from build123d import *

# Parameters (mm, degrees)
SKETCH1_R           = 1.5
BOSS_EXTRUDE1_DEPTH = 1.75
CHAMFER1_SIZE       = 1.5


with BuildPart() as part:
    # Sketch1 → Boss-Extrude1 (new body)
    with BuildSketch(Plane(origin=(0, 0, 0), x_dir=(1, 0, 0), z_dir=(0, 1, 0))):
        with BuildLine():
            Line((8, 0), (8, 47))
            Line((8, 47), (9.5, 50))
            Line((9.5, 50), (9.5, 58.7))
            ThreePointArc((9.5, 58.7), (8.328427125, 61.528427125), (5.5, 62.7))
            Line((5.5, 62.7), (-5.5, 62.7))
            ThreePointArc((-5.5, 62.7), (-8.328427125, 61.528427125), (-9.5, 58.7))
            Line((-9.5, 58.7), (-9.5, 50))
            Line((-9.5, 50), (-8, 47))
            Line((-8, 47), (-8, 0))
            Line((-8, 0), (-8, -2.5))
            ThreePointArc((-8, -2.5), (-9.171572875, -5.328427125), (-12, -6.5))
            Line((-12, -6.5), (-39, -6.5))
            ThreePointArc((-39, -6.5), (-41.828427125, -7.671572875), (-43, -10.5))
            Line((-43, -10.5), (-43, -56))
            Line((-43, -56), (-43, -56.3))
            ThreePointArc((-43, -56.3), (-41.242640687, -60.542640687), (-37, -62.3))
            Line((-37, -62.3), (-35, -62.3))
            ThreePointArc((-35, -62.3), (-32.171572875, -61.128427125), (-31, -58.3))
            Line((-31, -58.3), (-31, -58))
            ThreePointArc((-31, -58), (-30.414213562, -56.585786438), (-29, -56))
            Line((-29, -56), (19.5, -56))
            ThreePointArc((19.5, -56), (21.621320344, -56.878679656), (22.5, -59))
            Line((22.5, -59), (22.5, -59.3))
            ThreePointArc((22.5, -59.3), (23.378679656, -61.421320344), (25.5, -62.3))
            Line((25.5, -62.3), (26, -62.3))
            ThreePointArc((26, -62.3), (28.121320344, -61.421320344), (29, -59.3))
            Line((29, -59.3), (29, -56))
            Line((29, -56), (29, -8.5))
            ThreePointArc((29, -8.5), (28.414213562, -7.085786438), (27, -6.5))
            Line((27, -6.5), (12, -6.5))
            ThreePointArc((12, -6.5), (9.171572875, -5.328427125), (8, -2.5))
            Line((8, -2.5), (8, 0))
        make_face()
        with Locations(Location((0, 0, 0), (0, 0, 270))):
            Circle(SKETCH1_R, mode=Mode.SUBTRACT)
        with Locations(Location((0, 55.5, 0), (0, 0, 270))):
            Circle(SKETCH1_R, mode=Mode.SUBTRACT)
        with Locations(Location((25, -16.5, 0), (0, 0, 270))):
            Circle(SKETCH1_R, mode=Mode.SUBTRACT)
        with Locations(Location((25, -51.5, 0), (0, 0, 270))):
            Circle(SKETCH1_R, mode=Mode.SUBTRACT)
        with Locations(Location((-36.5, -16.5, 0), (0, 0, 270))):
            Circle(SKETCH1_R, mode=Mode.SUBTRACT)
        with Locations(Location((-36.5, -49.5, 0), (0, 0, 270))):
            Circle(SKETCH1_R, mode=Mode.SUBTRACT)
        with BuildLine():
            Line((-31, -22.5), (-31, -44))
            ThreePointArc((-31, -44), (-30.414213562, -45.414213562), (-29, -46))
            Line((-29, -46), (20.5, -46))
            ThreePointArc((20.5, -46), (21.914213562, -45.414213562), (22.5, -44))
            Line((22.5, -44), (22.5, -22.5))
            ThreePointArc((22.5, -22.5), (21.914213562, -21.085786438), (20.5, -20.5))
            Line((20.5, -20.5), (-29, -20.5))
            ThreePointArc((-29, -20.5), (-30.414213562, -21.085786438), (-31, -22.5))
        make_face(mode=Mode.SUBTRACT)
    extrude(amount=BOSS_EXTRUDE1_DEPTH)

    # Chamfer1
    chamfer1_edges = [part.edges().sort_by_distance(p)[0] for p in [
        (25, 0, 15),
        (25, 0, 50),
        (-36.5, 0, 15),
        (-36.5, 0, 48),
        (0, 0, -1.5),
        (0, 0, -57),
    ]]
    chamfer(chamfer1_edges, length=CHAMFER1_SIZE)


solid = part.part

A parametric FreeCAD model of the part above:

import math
import FreeCAD as App
import Part
import Sketcher

V = App.Vector
Q = App.Units.Quantity


def edges_at(feature, points):
    """Names of the edges that pass closest to the given points."""
    edges = feature.Shape.Edges
    near = lambda p: min(range(len(edges)), key=lambda i: edges[i].distToShape(Part.Vertex(*p))[0])
    return sorted({f"Edge{near(p) + 1}" for p in points})

doc = App.newDocument("Part")
params = doc.addObject("Spreadsheet::Sheet", "Params")
for row, (alias, value) in enumerate([
    ("sketch1_diameter", "3 mm"),
    ("sketch1_radius", "4 mm"),
    ("sketch1_radius2", "6 mm"),
    ("sketch1_radius3", "2 mm"),
    ("sketch1_width", "11 mm"),
    ("pad1_length", "1.75 mm"),
    ("chamfer_size", "1.5 mm"),
], start=1):
    params.set(f"A{row}", alias)
    params.set(f"B{row}", "=" + value)
    params.setAlias(f"B{row}", alias)

body = doc.addObject("PartDesign::Body", "Body")

# Sketch on XZ plane
sketch1 = body.newObject("Sketcher::SketchObject", "Sketch")
sketch1.AttachmentSupport = (doc.getObject("XZ_Plane"), [""])
sketch1.MapMode = "FlatFace"
sketch1.addGeometry(Part.LineSegment(V(8, -47, 0), V(9.5, -50, 0)), False)
sketch1.addGeometry(Part.LineSegment(V(9.5, -50, 0), V(9.5, -58.7, 0)), False)
sketch1.addGeometry(Part.ArcOfCircle(Part.Circle(V(5.5, -58.7, 0), V(0, 0, 1), 4), math.radians(-90), math.radians(0)), False)
sketch1.addGeometry(Part.LineSegment(V(5.5, -62.7, 0), V(-5.5, -62.7, 0)), False)
sketch1.addGeometry(Part.ArcOfCircle(Part.Circle(V(-5.5, -58.7, 0), V(0, 0, 1), 4), math.radians(180), math.radians(270)), False)
sketch1.addGeometry(Part.LineSegment(V(-9.5, -58.7, 0), V(-9.5, -50, 0)), False)
sketch1.addGeometry(Part.LineSegment(V(-9.5, -50, 0), V(-8, -47, 0)), False)
sketch1.addGeometry(Part.LineSegment(V(-8, -47, 0), V(-8, 2.5, 0)), False)
sketch1.addGeometry(Part.ArcOfCircle(Part.Circle(V(-12, 2.5, 0), V(0, 0, 1), 4), math.radians(0), math.radians(90)), False)
sketch1.addGeometry(Part.LineSegment(V(-12, 6.5, 0), V(-39, 6.5, 0)), False)
sketch1.addGeometry(Part.ArcOfCircle(Part.Circle(V(-39, 10.5, 0), V(0, 0, 1), 4), math.radians(180), math.radians(270)), False)
sketch1.addGeometry(Part.LineSegment(V(-43, 10.5, 0), V(-43, 56.3, 0)), False)
sketch1.addGeometry(Part.ArcOfCircle(Part.Circle(V(-37, 56.3, 0), V(0, 0, 1), 6), math.radians(90), math.radians(180)), False)
sketch1.addGeometry(Part.LineSegment(V(-37, 62.3, 0), V(-35, 62.3, 0)), False)
sketch1.addGeometry(Part.ArcOfCircle(Part.Circle(V(-35, 58.3, 0), V(0, 0, 1), 4), math.radians(0), math.radians(90)), False)
sketch1.addGeometry(Part.LineSegment(V(-31, 58.3, 0), V(-31, 58, 0)), False)
sketch1.addGeometry(Part.ArcOfCircle(Part.Circle(V(-29, 58, 0), V(0, 0, 1), 2), math.radians(-180), math.radians(-90)), False)
sketch1.addGeometry(Part.LineSegment(V(-29, 56, 0), V(19.5, 56, 0)), False)
sketch1.addGeometry(Part.ArcOfCircle(Part.Circle(V(19.5, 59, 0), V(0, 0, 1), 3), math.radians(-90), math.radians(0)), False)
sketch1.addGeometry(Part.LineSegment(V(22.5, 59, 0), V(22.5, 59.3, 0)), False)
sketch1.addGeometry(Part.ArcOfCircle(Part.Circle(V(25.5, 59.3, 0), V(0, 0, 1), 3), math.radians(90), math.radians(180)), False)
sketch1.addGeometry(Part.LineSegment(V(25.5, 62.3, 0), V(26, 62.3, 0)), False)
sketch1.addGeometry(Part.ArcOfCircle(Part.Circle(V(26, 59.3, 0), V(0, 0, 1), 3), math.radians(0), math.radians(90)), False)
sketch1.addGeometry(Part.LineSegment(V(29, 59.3, 0), V(29, 8.5, 0)), False)
sketch1.addGeometry(Part.ArcOfCircle(Part.Circle(V(27, 8.5, 0), V(0, 0, 1), 2), math.radians(-90), math.radians(0)), False)
sketch1.addGeometry(Part.LineSegment(V(27, 6.5, 0), V(12, 6.5, 0)), False)
sketch1.addGeometry(Part.ArcOfCircle(Part.Circle(V(12, 2.5, 0), V(0, 0, 1), 4), math.radians(90), math.radians(180)), False)
sketch1.addGeometry(Part.LineSegment(V(8, 2.5, 0), V(8, -47, 0)), False)
sketch1.addGeometry(Part.Circle(V(-36.5, 49.5, 0), V(0, 0, 1), 1.5), False)
sketch1.addGeometry(Part.Circle(V(-36.5, 16.5, 0), V(0, 0, 1), 1.5), False)
sketch1.addGeometry(Part.LineSegment(V(-31, 44, 0), V(-31, 22.5, 0)), False)
sketch1.addGeometry(Part.ArcOfCircle(Part.Circle(V(-29, 22.5, 0), V(0, 0, 1), 2), math.radians(-180), math.radians(-90)), False)
sketch1.addGeometry(Part.LineSegment(V(-29, 20.5, 0), V(20.5, 20.5, 0)), False)
sketch1.addGeometry(Part.ArcOfCircle(Part.Circle(V(20.5, 22.5, 0), V(0, 0, 1), 2), math.radians(-90), math.radians(0)), False)
sketch1.addGeometry(Part.LineSegment(V(22.5, 22.5, 0), V(22.5, 44, 0)), False)
sketch1.addGeometry(Part.ArcOfCircle(Part.Circle(V(20.5, 44, 0), V(0, 0, 1), 2), math.radians(0), math.radians(90)), False)
sketch1.addGeometry(Part.LineSegment(V(20.5, 46, 0), V(-29, 46, 0)), False)
sketch1.addGeometry(Part.ArcOfCircle(Part.Circle(V(-29, 44, 0), V(0, 0, 1), 2), math.radians(90), math.radians(180)), False)
sketch1.addGeometry(Part.Circle(V(25, 51.5, 0), V(0, 0, 1), 1.5), False)
sketch1.addGeometry(Part.Circle(V(0, 0, 0), V(0, 0, 1), 1.5), False)
sketch1.addGeometry(Part.Circle(V(25, 16.5, 0), V(0, 0, 1), 1.5), False)
sketch1.addGeometry(Part.Circle(V(0, -55.5, 0), V(0, 0, 1), 1.5), False)
sketch1.addConstraint(Sketcher.Constraint("Coincident", 0, 2, 1, 1))
sketch1.addConstraint(Sketcher.Constraint("Tangent", 1, 2, 2, 2))
sketch1.addConstraint(Sketcher.Constraint("Tangent", 2, 1, 3, 1))
sketch1.addConstraint(Sketcher.Constraint("Tangent", 3, 2, 4, 2))
sketch1.addConstraint(Sketcher.Constraint("Tangent", 4, 1, 5, 1))
sketch1.addConstraint(Sketcher.Constraint("Coincident", 5, 2, 6, 1))
sketch1.addConstraint(Sketcher.Constraint("Coincident", 6, 2, 7, 1))
sketch1.addConstraint(Sketcher.Constraint("Tangent", 7, 2, 8, 1))
sketch1.addConstraint(Sketcher.Constraint("Tangent", 8, 2, 9, 1))
sketch1.addConstraint(Sketcher.Constraint("Tangent", 9, 2, 10, 2))
sketch1.addConstraint(Sketcher.Constraint("Tangent", 10, 1, 11, 1))
sketch1.addConstraint(Sketcher.Constraint("Tangent", 11, 2, 12, 2))
sketch1.addConstraint(Sketcher.Constraint("Tangent", 12, 1, 13, 1))
sketch1.addConstraint(Sketcher.Constraint("Tangent", 13, 2, 14, 2))
sketch1.addConstraint(Sketcher.Constraint("Tangent", 14, 1, 15, 1))
sketch1.addConstraint(Sketcher.Constraint("Tangent", 15, 2, 16, 1))
sketch1.addConstraint(Sketcher.Constraint("Tangent", 16, 2, 17, 1))
sketch1.addConstraint(Sketcher.Constraint("Tangent", 17, 2, 18, 1))
sketch1.addConstraint(Sketcher.Constraint("Tangent", 18, 2, 19, 1))
sketch1.addConstraint(Sketcher.Constraint("Tangent", 19, 2, 20, 2))
sketch1.addConstraint(Sketcher.Constraint("Tangent", 20, 1, 21, 1))
sketch1.addConstraint(Sketcher.Constraint("Tangent", 21, 2, 22, 2))
sketch1.addConstraint(Sketcher.Constraint("Tangent", 22, 1, 23, 1))
sketch1.addConstraint(Sketcher.Constraint("Tangent", 23, 2, 24, 2))
sketch1.addConstraint(Sketcher.Constraint("Tangent", 24, 1, 25, 1))
sketch1.addConstraint(Sketcher.Constraint("Tangent", 25, 2, 26, 1))
sketch1.addConstraint(Sketcher.Constraint("Tangent", 26, 2, 27, 1))
sketch1.addConstraint(Sketcher.Constraint("Coincident", 27, 2, 0, 1))
sketch1.addConstraint(Sketcher.Constraint("Tangent", 30, 2, 31, 1))
sketch1.addConstraint(Sketcher.Constraint("Tangent", 31, 2, 32, 1))
sketch1.addConstraint(Sketcher.Constraint("Tangent", 32, 2, 33, 1))
sketch1.addConstraint(Sketcher.Constraint("Tangent", 33, 2, 34, 1))
sketch1.addConstraint(Sketcher.Constraint("Tangent", 34, 2, 35, 1))
sketch1.addConstraint(Sketcher.Constraint("Tangent", 35, 2, 36, 1))
sketch1.addConstraint(Sketcher.Constraint("Tangent", 36, 2, 37, 1))
sketch1.addConstraint(Sketcher.Constraint("Tangent", 37, 2, 30, 1))
sketch1.addConstraint(Sketcher.Constraint("Vertical", 1))
sketch1.addConstraint(Sketcher.Constraint("Horizontal", 3))
sketch1.addConstraint(Sketcher.Constraint("Vertical", 5))
sketch1.addConstraint(Sketcher.Constraint("Vertical", 7))
sketch1.addConstraint(Sketcher.Constraint("Horizontal", 9))
sketch1.addConstraint(Sketcher.Constraint("Vertical", 11))
sketch1.addConstraint(Sketcher.Constraint("Horizontal", 13))
sketch1.addConstraint(Sketcher.Constraint("Vertical", 15))
sketch1.addConstraint(Sketcher.Constraint("Horizontal", 17))
sketch1.addConstraint(Sketcher.Constraint("Vertical", 19))
sketch1.addConstraint(Sketcher.Constraint("Horizontal", 21))
sketch1.addConstraint(Sketcher.Constraint("Vertical", 23))
sketch1.addConstraint(Sketcher.Constraint("Horizontal", 25))
sketch1.addConstraint(Sketcher.Constraint("Vertical", 27))
sketch1.addConstraint(Sketcher.Constraint("Vertical", 30))
sketch1.addConstraint(Sketcher.Constraint("Horizontal", 32))
sketch1.addConstraint(Sketcher.Constraint("Vertical", 34))
sketch1.addConstraint(Sketcher.Constraint("Horizontal", 36))
sketch1.addConstraint(Sketcher.Constraint("Coincident", 39, 3, -1, 1))
sketch1.addConstraint(Sketcher.Constraint("Equal", 2, 4))
sketch1.addConstraint(Sketcher.Constraint("Equal", 4, 8))
sketch1.addConstraint(Sketcher.Constraint("Equal", 8, 10))
sketch1.addConstraint(Sketcher.Constraint("Equal", 10, 14))
sketch1.addConstraint(Sketcher.Constraint("Equal", 18, 20))
sketch1.addConstraint(Sketcher.Constraint("Equal", 20, 22))
sketch1.addConstraint(Sketcher.Constraint("Equal", 16, 24))
sketch1.addConstraint(Sketcher.Constraint("Equal", 14, 26))
sketch1.addConstraint(Sketcher.Constraint("Equal", 28, 29))
sketch1.addConstraint(Sketcher.Constraint("Equal", 24, 31))
sketch1.addConstraint(Sketcher.Constraint("Equal", 31, 33))
sketch1.addConstraint(Sketcher.Constraint("Equal", 33, 35))
sketch1.addConstraint(Sketcher.Constraint("Equal", 35, 37))
sketch1.addConstraint(Sketcher.Constraint("Equal", 29, 38))
sketch1.addConstraint(Sketcher.Constraint("Equal", 38, 39))
sketch1.addConstraint(Sketcher.Constraint("Equal", 39, 40))
sketch1.addConstraint(Sketcher.Constraint("Equal", 40, 41))
sketch1.addConstraint(Sketcher.Constraint("Symmetric", 8, 3, 26, 3, -2))
sketch1.addConstraint(Sketcher.Constraint("Symmetric", 0, 2, 5, 2, -2))
sketch1.addConstraint(Sketcher.Constraint("PointOnObject", 41, 3, -2))
sketch1.addConstraint(Sketcher.Constraint("Horizontal", 29, 3, 40, 3))
sketch1.addConstraint(Sketcher.Constraint("Horizontal", 13, 2, 20, 1))
sketch1.addConstraint(Sketcher.Constraint("Horizontal", 6, 2, 27, 2))
sketch1.addConstraint(Sketcher.Constraint("Vertical", 28, 3, 29, 3))
sketch1.addConstraint(Sketcher.Constraint("Vertical", 16, 3, 31, 3))
sketch1.addConstraint(Sketcher.Constraint("Vertical", 38, 3, 40, 3))
sketch1.addConstraint(Sketcher.Constraint("Vertical", 19, 2, 33, 2))
sketch1.addConstraint(Sketcher.Constraint("Equal", 36, 7))
sketch1.addConstraint(Sketcher.Constraint("Equal", 15, 19))
sketch1.addConstraint(Sketcher.Constraint("Diameter", 28, Q("3 mm")))
sketch1.addConstraint(Sketcher.Constraint("Radius", 2, Q("4 mm")))
sketch1.addConstraint(Sketcher.Constraint("Radius", 12, Q("6 mm")))
sketch1.addConstraint(Sketcher.Constraint("Radius", 16, Q("2 mm")))
sketch1.addConstraint(Sketcher.Constraint("DistanceX", 3, 2, 3, 1, Q("11 mm")))
sketch1.addConstraint(Sketcher.Constraint("DistanceX", 9, 2, 9, 1, Q("27 mm")))
sketch1.addConstraint(Sketcher.Constraint("DistanceX", 13, 1, 13, 2, Q("2 mm")))
sketch1.addConstraint(Sketcher.Constraint("DistanceX", 25, 2, 25, 1, Q("15 mm")))
sketch1.addConstraint(Sketcher.Constraint("DistanceX", 17, 1, 17, 2, Q("48.5 mm")))
sketch1.addConstraint(Sketcher.Constraint("DistanceX", 21, 1, 21, 2, Q("0.5 mm")))
sketch1.addConstraint(Sketcher.Constraint("DistanceY", 1, 2, 1, 1, Q("8.7 mm")))
sketch1.addConstraint(Sketcher.Constraint("DistanceY", 11, 1, 11, 2, Q("45.8 mm")))
sketch1.addConstraint(Sketcher.Constraint("DistanceY", 15, 2, 15, 1, Q("0.3 mm")))
sketch1.addConstraint(Sketcher.Constraint("DistanceY", 30, 2, 30, 1, Q("21.5 mm")))
sketch1.addConstraint(Sketcher.Constraint("DistanceY", -1, 1, 16, 3, Q("58 mm")))
sketch1.addConstraint(Sketcher.Constraint("DistanceY", -1, 1, 35, 3, Q("44 mm")))
sketch1.addConstraint(Sketcher.Constraint("DistanceX", -1, 1, 38, 3, Q("25 mm")))
sketch1.addConstraint(Sketcher.Constraint("DistanceY", 0, 2, -1, 1, Q("50 mm")))
sketch1.addConstraint(Sketcher.Constraint("DistanceY", 10, 3, 28, 3, Q("39 mm")))
sketch1.addConstraint(Sketcher.Constraint("DistanceY", 10, 3, 29, 3, Q("6 mm")))
sketch1.addConstraint(Sketcher.Constraint("DistanceY", 33, 3, 38, 3, Q("29 mm")))
sketch1.addConstraint(Sketcher.Constraint("DistanceY", 41, 3, 8, 3, Q("58 mm")))
sketch1.addConstraint(Sketcher.Constraint("DistanceX", 28, 3, -1, 1, Q("36.5 mm")))
sketch1.setExpression("Constraints[84]", "Params.sketch1_diameter")
sketch1.setExpression("Constraints[85]", "Params.sketch1_radius")
sketch1.setExpression("Constraints[86]", "Params.sketch1_radius2")
sketch1.setExpression("Constraints[87]", "Params.sketch1_radius3")
sketch1.setExpression("Constraints[88]", "Params.sketch1_width")
pad1 = body.newObject("PartDesign::Pad", "Pad")
pad1.Profile = sketch1
pad1.setExpression("Length", "Params.pad1_length")
pad1.Reversed = True
doc.recompute()

chamfer = body.newObject("PartDesign::Chamfer", "Chamfer")
chamfer.Base = (pad1, edges_at(pad1, [
    (25, 0, 15),
    (25, 0, 50),
    (-36.5, 0, 15),
    (-36.5, 0, 48),
    (0, 0, -1.5),
    (0, 0, -57),
]))
chamfer.setExpression("Size", "Params.chamfer_size")

doc.recompute()
